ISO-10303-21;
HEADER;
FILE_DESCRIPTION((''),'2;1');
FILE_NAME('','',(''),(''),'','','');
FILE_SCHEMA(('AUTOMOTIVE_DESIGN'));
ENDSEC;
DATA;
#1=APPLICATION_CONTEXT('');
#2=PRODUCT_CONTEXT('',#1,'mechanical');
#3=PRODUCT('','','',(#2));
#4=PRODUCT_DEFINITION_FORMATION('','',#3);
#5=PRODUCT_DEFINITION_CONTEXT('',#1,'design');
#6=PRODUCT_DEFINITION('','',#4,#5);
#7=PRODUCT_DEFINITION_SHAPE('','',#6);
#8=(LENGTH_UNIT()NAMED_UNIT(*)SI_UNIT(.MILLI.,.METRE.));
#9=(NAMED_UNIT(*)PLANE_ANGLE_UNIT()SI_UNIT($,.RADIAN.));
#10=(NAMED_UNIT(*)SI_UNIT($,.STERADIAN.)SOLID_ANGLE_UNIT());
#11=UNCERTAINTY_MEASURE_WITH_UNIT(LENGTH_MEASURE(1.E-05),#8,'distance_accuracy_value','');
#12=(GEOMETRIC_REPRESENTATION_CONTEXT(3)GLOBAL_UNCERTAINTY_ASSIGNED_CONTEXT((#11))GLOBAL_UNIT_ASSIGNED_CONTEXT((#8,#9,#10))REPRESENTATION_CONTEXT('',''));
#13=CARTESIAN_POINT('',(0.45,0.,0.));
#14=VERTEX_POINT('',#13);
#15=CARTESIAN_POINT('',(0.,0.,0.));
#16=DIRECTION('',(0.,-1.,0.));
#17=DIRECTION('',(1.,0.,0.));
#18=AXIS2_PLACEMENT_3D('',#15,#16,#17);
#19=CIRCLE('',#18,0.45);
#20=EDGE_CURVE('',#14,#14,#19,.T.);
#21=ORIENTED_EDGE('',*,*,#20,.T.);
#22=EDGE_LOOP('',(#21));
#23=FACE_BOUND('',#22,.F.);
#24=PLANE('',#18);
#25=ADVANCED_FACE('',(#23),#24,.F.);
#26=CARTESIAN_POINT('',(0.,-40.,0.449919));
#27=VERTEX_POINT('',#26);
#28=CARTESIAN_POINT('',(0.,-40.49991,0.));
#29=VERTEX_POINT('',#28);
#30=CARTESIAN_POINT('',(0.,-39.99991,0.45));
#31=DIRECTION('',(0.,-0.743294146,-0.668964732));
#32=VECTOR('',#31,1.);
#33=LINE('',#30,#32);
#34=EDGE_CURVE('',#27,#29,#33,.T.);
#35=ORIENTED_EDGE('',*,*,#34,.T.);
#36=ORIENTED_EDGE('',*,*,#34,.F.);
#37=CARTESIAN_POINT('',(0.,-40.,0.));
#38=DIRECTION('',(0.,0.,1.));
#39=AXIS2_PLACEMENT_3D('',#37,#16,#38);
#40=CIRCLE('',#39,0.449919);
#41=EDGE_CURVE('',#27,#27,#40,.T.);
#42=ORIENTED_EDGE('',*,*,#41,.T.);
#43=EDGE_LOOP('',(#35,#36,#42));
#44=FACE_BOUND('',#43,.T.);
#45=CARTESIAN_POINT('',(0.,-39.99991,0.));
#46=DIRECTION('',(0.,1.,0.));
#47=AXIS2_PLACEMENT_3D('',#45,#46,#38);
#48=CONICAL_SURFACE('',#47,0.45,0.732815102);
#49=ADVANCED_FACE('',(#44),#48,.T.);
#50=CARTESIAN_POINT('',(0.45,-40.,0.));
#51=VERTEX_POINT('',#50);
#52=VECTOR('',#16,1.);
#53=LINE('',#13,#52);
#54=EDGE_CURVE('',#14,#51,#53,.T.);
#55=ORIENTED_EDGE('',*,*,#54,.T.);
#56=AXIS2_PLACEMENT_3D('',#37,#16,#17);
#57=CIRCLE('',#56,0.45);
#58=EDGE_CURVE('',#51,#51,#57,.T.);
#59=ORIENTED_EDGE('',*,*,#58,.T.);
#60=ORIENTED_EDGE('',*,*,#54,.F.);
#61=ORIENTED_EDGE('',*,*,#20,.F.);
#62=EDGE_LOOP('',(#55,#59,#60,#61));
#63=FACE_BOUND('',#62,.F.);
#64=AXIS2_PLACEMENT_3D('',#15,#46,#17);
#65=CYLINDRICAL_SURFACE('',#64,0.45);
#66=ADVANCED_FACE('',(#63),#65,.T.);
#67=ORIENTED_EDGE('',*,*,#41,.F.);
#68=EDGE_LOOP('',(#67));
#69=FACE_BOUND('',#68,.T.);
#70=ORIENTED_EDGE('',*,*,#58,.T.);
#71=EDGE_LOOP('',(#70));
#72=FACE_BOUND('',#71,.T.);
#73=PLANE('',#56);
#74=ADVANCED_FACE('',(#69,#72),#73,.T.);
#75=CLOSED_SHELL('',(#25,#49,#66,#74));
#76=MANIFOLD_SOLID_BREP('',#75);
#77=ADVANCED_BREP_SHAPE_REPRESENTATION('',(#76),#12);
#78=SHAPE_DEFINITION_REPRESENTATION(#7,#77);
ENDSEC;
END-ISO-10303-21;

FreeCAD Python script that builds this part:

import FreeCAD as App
import Part
import Sketcher
Q = App.Units.Quantity

doc = App.newDocument("Part")
params = doc.addObject("Spreadsheet::Sheet", "Params")
for row, (alias, value) in enumerate([
    ("sketch1_diameter", "0.9 mm"),
    ("pad1_length", "40 mm"),
    ("sketch2_width", "0.5 mm"),
    ("sketch2_height", "0.45 mm"),
    ("revolution_angle", "360 deg"),
], start=1):
    params.set(f"A{row}", alias)
    params.set(f"B{row}", "=" + value)
    params.setAlias(f"B{row}", alias)

body = doc.addObject("PartDesign::Body", "Body")

sketch1 = body.newObject("Sketcher::SketchObject", "Sketch")
sketch1.AttachmentSupport = (doc.getObject("XZ_Plane"), [""])
sketch1.MapMode = "FlatFace"
sketch1.addGeometry(Part.Circle(App.Vector(0, 0, 0), App.Vector(0, 0, 1), 0.45), False)
sketch1.addConstraint([
    Sketcher.Constraint("Coincident", 0, 3, -1, 1),
    Sketcher.Constraint("Diameter", 0, Q("0.9 mm")),
])
sketch1.setExpression("Constraints[1]", "Params.sketch1_diameter")
pad1 = body.newObject("PartDesign::Pad", "Pad")
pad1.Profile = sketch1
pad1.setExpression("Length", "Params.pad1_length")

sketch2 = body.newObject("Sketcher::SketchObject", "Sketch001")
sketch2.AttachmentSupport = (doc.getObject("YZ_Plane"), [""])
sketch2.MapMode = "FlatFace"
sketch2.addGeometry([
    Part.LineSegment(App.Vector(-40.5, 0, 0), App.Vector(-40, 0, 0)),
    Part.LineSegment(App.Vector(-40, 0, 0), App.Vector(-40, 0.45, 0)),
    Part.LineSegment(App.Vector(-40, 0.45, 0), App.Vector(-40.5, 0, 0)),
], False)
sketch2.addConstraint([
    Sketcher.Constraint("Coincident", 0, 2, 1, 1),
    Sketcher.Constraint("Coincident", 1, 2, 2, 1),
    Sketcher.Constraint("Coincident", 2, 2, 0, 1),
    Sketcher.Constraint("Horizontal", 0),
    Sketcher.Constraint("Vertical", 1),
    Sketcher.Constraint("PointOnObject", 0, 2, -1),
    Sketcher.Constraint("DistanceX", 0, 1, 0, 2, Q("0.5 mm")),
    Sketcher.Constraint("DistanceY", 1, 1, 1, 2, Q("0.45 mm")),
    Sketcher.Constraint("DistanceX", 0, 2, -1, 1, Q("39.99991 mm")),
])
sketch2.setExpression("Constraints[6]", "Params.sketch2_width")
sketch2.setExpression("Constraints[7]", "Params.sketch2_height")
revolution = body.newObject("PartDesign::Revolution", "Revolution")
revolution.Profile = sketch2
revolution.ReferenceAxis = (sketch2, ["H_Axis"])
revolution.setExpression("Angle", "Params.revolution_angle")

doc.recompute()
